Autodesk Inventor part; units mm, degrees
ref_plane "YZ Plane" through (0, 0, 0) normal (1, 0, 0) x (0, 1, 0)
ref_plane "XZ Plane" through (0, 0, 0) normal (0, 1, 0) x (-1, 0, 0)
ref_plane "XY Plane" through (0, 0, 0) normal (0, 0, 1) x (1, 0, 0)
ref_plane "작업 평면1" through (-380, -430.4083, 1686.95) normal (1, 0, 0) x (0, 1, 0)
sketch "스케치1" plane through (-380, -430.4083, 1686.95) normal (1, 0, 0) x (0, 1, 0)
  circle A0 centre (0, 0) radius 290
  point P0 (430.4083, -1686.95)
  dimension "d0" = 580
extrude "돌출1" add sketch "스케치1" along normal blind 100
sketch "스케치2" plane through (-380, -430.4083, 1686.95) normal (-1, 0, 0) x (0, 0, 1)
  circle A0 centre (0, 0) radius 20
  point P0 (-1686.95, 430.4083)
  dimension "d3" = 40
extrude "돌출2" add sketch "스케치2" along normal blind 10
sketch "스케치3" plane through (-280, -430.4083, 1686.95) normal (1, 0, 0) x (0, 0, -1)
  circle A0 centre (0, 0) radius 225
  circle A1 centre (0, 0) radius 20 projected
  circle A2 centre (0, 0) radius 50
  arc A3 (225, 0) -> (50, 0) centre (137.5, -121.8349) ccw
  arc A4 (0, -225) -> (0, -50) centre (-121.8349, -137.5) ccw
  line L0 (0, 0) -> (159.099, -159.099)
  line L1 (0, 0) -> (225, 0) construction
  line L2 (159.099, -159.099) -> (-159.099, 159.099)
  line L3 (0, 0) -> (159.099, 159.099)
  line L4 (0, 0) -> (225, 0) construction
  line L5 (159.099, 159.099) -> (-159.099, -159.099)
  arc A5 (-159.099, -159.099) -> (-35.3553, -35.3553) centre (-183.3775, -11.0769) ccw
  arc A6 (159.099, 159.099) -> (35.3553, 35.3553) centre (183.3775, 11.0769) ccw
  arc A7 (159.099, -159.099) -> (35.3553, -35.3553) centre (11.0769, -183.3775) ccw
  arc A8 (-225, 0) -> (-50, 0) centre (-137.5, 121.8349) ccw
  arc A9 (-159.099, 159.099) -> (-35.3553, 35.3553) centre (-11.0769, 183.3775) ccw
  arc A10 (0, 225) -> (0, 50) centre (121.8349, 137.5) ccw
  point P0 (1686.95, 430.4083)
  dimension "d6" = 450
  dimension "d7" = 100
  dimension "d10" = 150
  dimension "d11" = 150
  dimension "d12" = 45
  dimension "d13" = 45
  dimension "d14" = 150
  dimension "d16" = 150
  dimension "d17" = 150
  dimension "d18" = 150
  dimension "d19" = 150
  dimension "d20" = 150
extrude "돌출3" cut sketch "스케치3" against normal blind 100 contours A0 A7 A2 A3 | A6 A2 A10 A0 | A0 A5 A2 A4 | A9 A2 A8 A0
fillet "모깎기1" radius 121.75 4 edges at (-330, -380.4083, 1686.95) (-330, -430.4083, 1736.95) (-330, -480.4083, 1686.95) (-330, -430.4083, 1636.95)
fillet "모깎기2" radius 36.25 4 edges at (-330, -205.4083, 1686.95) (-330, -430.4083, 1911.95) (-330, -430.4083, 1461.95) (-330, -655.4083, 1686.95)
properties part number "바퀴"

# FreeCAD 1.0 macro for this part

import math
import FreeCAD as App
import Part
import Sketcher
from FreeCAD import Vector
Q = App.Units.Quantity


def edges_at(feature, points):
    """Names of the edges that pass closest to the given points."""
    edges = feature.Shape.Edges
    near = lambda p: min(range(len(edges)), key=lambda i: edges[i].distToShape(Part.Vertex(*p))[0])
    return sorted({f"Edge{near(p) + 1}" for p in points})

doc = App.newDocument("Part")
body = doc.addObject("PartDesign::Body", "Body")

# Sketch on YZ plane
sketch1 = body.newObject("Sketcher::SketchObject", "Sketch")
sketch1.AttachmentSupport = (doc.getObject("YZ_Plane"), [""])
sketch1.MapMode = "FlatFace"
sketch1.AttachmentOffset = App.Placement(Vector(0, 0, -380), App.Rotation())
sketch1.addGeometry(Part.Circle(Vector(-430, 1687, 0), Vector(0, 0, 1), 290), False)
sketch1.addConstraint(Sketcher.Constraint("Diameter", 0, Q("580 mm")))
sketch1.addConstraint(Sketcher.Constraint("DistanceY", -1, 1, 0, 3, Q("1686.95 mm")))
sketch1.addConstraint(Sketcher.Constraint("DistanceX", 0, 3, -1, 1, Q("430.4083 mm")))
pad1 = body.newObject("PartDesign::Pad", "Pad")
pad1.Profile = sketch1
pad1.Length = 100

# Sketch on YZ plane
sketch2 = body.newObject("Sketcher::SketchObject", "Sketch001")
sketch2.AttachmentSupport = (doc.getObject("YZ_Plane"), [""])
sketch2.MapMode = "FlatFace"
sketch2.AttachmentOffset = App.Placement(Vector(0, 0, -380), App.Rotation())
sketch2.addGeometry(Part.Circle(Vector(-430, 1687, 0), Vector(0, 0, 1), 20), False)
sketch2.addConstraint(Sketcher.Constraint("Diameter", 0, Q("40 mm")))
sketch2.addConstraint(Sketcher.Constraint("DistanceY", -1, 1, 0, 3, Q("1686.95 mm")))
sketch2.addConstraint(Sketcher.Constraint("DistanceX", 0, 3, -1, 1, Q("430.4083 mm")))
pad2 = body.newObject("PartDesign::Pad", "Pad001")
pad2.Profile = sketch2
pad2.Length = 10
pad2.Reversed = True

# Sketch on YZ plane
sketch3 = body.newObject("Sketcher::SketchObject", "Sketch002")
sketch3.AttachmentSupport = (doc.getObject("YZ_Plane"), [""])
sketch3.MapMode = "FlatFace"
sketch3.AttachmentOffset = App.Placement(Vector(0, 0, -280), App.Rotation())
sketch3.addGeometry(Part.ArcOfCircle(Part.Circle(Vector(-430, 1687, 0), Vector(0, 0, 1), 225), math.radians(-135), math.radians(-90)), False)
sketch3.addGeometry(Part.ArcOfCircle(Part.Circle(Vector(-552, 1549, 0), Vector(0, 0, 1), 150), math.radians(-36), math.radians(36)), False)
sketch3.addGeometry(Part.ArcOfCircle(Part.Circle(Vector(-430, 1687, 0), Vector(0, 0, 1), 50), math.radians(-135), math.radians(-90)), False)
sketch3.addGeometry(Part.ArcOfCircle(Part.Circle(Vector(-614, 1676, 0), Vector(0, 0, 1), 150), math.radians(-81), math.radians(-9)), False)
sketch3.addGeometry(Part.ArcOfCircle(Part.Circle(Vector(-419, 1504, 0), Vector(0, 0, 1), 150), math.radians(9), math.radians(81)), False)
sketch3.addGeometry(Part.ArcOfCircle(Part.Circle(Vector(-430, 1687, 0), Vector(0, 0, 1), 225), math.radians(-45), math.radians(0)), False)
sketch3.addGeometry(Part.ArcOfCircle(Part.Circle(Vector(-293, 1565, 0), Vector(0, 0, 1), 150), math.radians(54), math.radians(126)), False)
sketch3.addGeometry(Part.ArcOfCircle(Part.Circle(Vector(-430, 1687, 0), Vector(0, 0, 1), 50), math.radians(-45), math.radians(0)), False)
sketch3.addGeometry(Part.ArcOfCircle(Part.Circle(Vector(-430, 1687, 0), Vector(0, 0, 1), 225), math.radians(135), math.radians(180)), False)
sketch3.addGeometry(Part.ArcOfCircle(Part.Circle(Vector(-568, 1809, 0), Vector(0, 0, 1), 150), math.radians(-126), math.radians(-54)), False)
sketch3.addGeometry(Part.ArcOfCircle(Part.Circle(Vector(-430, 1687, 0), Vector(0, 0, 1), 50), math.radians(135), math.radians(180)), False)
sketch3.addGeometry(Part.ArcOfCircle(Part.Circle(Vector(-441, 1870, 0), Vector(0, 0, 1), 150), math.radians(-171), math.radians(-99)), False)
sketch3.addGeometry(Part.ArcOfCircle(Part.Circle(Vector(-247, 1698, 0), Vector(0, 0, 1), 150), math.radians(99), math.radians(171)), False)
sketch3.addGeometry(Part.ArcOfCircle(Part.Circle(Vector(-430, 1687, 0), Vector(0, 0, 1), 225), math.radians(45), math.radians(90)), False)
sketch3.addGeometry(Part.ArcOfCircle(Part.Circle(Vector(-309, 1824, 0), Vector(0, 0, 1), 150), math.radians(144), math.radians(216)), False)
sketch3.addGeometry(Part.ArcOfCircle(Part.Circle(Vector(-430, 1687, 0), Vector(0, 0, 1), 50), math.radians(45), math.radians(90)), False)
sketch3.addConstraint(Sketcher.Constraint("Coincident", 0, 2, 1, 1))
sketch3.addConstraint(Sketcher.Constraint("Coincident", 1, 2, 2, 2))
sketch3.addConstraint(Sketcher.Constraint("Coincident", 2, 1, 3, 2))
sketch3.addConstraint(Sketcher.Constraint("Coincident", 3, 1, 0, 1))
sketch3.addConstraint(Sketcher.Constraint("Coincident", 4, 1, 5, 1))
sketch3.addConstraint(Sketcher.Constraint("Coincident", 5, 2, 6, 1))
sketch3.addConstraint(Sketcher.Constraint("Coincident", 6, 2, 7, 2))
sketch3.addConstraint(Sketcher.Constraint("Coincident", 7, 1, 4, 2))
sketch3.addConstraint(Sketcher.Constraint("Coincident", 8, 2, 9, 1))
sketch3.addConstraint(Sketcher.Constraint("Coincident", 9, 2, 10, 2))
sketch3.addConstraint(Sketcher.Constraint("Coincident", 10, 1, 11, 2))
sketch3.addConstraint(Sketcher.Constraint("Coincident", 11, 1, 8, 1))
sketch3.addConstraint(Sketcher.Constraint("Coincident", 12, 1, 13, 1))
sketch3.addConstraint(Sketcher.Constraint("Coincident", 13, 2, 14, 1))
sketch3.addConstraint(Sketcher.Constraint("Coincident", 14, 2, 15, 2))
sketch3.addConstraint(Sketcher.Constraint("Coincident", 15, 1, 12, 2))
sketch3.addConstraint(Sketcher.Constraint("Coincident", 2, 3, 0, 3))
sketch3.addConstraint(Sketcher.Constraint("Coincident", 5, 3, 0, 3))
sketch3.addConstraint(Sketcher.Constraint("Coincident", 7, 3, 0, 3))
sketch3.addConstraint(Sketcher.Constraint("Coincident", 8, 3, 0, 3))
sketch3.addConstraint(Sketcher.Constraint("Coincident", 10, 3, 0, 3))
sketch3.addConstraint(Sketcher.Constraint("Coincident", 13, 3, 0, 3))
sketch3.addConstraint(Sketcher.Constraint("Coincident", 15, 3, 0, 3))
sketch3.addConstraint(Sketcher.Constraint("Equal", 1, 3))
sketch3.addConstraint(Sketcher.Constraint("Equal", 3, 4))
sketch3.addConstraint(Sketcher.Constraint("Equal", 0, 5))
sketch3.addConstraint(Sketcher.Constraint("Equal", 4, 6))
sketch3.addConstraint(Sketcher.Constraint("Equal", 2, 7))
sketch3.addConstraint(Sketcher.Constraint("Equal", 5, 8))
sketch3.addConstraint(Sketcher.Constraint("Equal", 6, 9))
sketch3.addConstraint(Sketcher.Constraint("Equal", 7, 10))
sketch3.addConstraint(Sketcher.Constraint("Equal", 9, 11))
sketch3.addConstraint(Sketcher.Constraint("Equal", 11, 12))
sketch3.addConstraint(Sketcher.Constraint("Equal", 8, 13))
sketch3.addConstraint(Sketcher.Constraint("Equal", 12, 14))
sketch3.addConstraint(Sketcher.Constraint("Equal", 10, 15))
sketch3.addConstraint(Sketcher.Constraint("Horizontal", 3, 1, 4, 1))
sketch3.addConstraint(Sketcher.Constraint("Horizontal", 15, 3, 5, 2))
sketch3.addConstraint(Sketcher.Constraint("Horizontal", 5, 2, 6, 2))
sketch3.addConstraint(Sketcher.Constraint("Horizontal", 2, 1, 7, 1))
sketch3.addConstraint(Sketcher.Constraint("Horizontal", 6, 2, 8, 2))
sketch3.addConstraint(Sketcher.Constraint("Horizontal", 8, 2, 9, 2))
sketch3.addConstraint(Sketcher.Constraint("Horizontal", 11, 1, 12, 1))
sketch3.addConstraint(Sketcher.Constraint("Horizontal", 10, 1, 15, 1))
sketch3.addConstraint(Sketcher.Constraint("Vertical", 15, 3, 0, 2))
sketch3.addConstraint(Sketcher.Constraint("Vertical", 0, 2, 1, 2))
sketch3.addConstraint(Sketcher.Constraint("Vertical", 2, 1, 10, 1))
sketch3.addConstraint(Sketcher.Constraint("Vertical", 3, 1, 11, 1))
sketch3.addConstraint(Sketcher.Constraint("Vertical", 1, 2, 13, 2))
sketch3.addConstraint(Sketcher.Constraint("Vertical", 13, 2, 14, 2))
sketch3.addConstraint(Sketcher.Constraint("Radius", 0, Q("225 mm")))
sketch3.addConstraint(Sketcher.Constraint("Radius", 1, Q("150 mm")))
sketch3.addConstraint(Sketcher.Constraint("Radius", 2, Q("50 mm")))
sketch3.addConstraint(Sketcher.Constraint("DistanceY", -1, 1, 0, 3, Q("1686.95 mm")))
sketch3.addConstraint(Sketcher.Constraint("DistanceY", -1, 1, 3, 3, Q("1675.873 mm")))
sketch3.addConstraint(Sketcher.Constraint("DistanceY", -1, 1, 3, 1, Q("1527.851 mm")))
sketch3.addConstraint(Sketcher.Constraint("DistanceX", 7, 1, -1, 1, Q("395.053 mm")))
pocket1 = body.newObject("PartDesign::Pocket", "Pocket")
pocket1.Profile = sketch3
pocket1.Length = 100
doc.recompute()

fillet = body.newObject("PartDesign::Fillet", "Fillet")
fillet.Base = (pocket1, edges_at(pocket1, [
    (-330, -380.408, 1686.95),
    (-330, -430.408, 1736.95),
    (-330, -480.408, 1686.95),
    (-330, -430.408, 1636.95),
]))
fillet.Radius = 121.75
doc.recompute()

fillet2 = body.newObject("PartDesign::Fillet", "Fillet001")
fillet2.Base = (fillet, edges_at(fillet, [
    (-330, -205.408, 1686.95),
    (-330, -430.408, 1911.95),
    (-330, -430.408, 1461.95),
    (-330, -655.408, 1686.95),
]))
fillet2.Radius = 36.25

doc.recompute()
